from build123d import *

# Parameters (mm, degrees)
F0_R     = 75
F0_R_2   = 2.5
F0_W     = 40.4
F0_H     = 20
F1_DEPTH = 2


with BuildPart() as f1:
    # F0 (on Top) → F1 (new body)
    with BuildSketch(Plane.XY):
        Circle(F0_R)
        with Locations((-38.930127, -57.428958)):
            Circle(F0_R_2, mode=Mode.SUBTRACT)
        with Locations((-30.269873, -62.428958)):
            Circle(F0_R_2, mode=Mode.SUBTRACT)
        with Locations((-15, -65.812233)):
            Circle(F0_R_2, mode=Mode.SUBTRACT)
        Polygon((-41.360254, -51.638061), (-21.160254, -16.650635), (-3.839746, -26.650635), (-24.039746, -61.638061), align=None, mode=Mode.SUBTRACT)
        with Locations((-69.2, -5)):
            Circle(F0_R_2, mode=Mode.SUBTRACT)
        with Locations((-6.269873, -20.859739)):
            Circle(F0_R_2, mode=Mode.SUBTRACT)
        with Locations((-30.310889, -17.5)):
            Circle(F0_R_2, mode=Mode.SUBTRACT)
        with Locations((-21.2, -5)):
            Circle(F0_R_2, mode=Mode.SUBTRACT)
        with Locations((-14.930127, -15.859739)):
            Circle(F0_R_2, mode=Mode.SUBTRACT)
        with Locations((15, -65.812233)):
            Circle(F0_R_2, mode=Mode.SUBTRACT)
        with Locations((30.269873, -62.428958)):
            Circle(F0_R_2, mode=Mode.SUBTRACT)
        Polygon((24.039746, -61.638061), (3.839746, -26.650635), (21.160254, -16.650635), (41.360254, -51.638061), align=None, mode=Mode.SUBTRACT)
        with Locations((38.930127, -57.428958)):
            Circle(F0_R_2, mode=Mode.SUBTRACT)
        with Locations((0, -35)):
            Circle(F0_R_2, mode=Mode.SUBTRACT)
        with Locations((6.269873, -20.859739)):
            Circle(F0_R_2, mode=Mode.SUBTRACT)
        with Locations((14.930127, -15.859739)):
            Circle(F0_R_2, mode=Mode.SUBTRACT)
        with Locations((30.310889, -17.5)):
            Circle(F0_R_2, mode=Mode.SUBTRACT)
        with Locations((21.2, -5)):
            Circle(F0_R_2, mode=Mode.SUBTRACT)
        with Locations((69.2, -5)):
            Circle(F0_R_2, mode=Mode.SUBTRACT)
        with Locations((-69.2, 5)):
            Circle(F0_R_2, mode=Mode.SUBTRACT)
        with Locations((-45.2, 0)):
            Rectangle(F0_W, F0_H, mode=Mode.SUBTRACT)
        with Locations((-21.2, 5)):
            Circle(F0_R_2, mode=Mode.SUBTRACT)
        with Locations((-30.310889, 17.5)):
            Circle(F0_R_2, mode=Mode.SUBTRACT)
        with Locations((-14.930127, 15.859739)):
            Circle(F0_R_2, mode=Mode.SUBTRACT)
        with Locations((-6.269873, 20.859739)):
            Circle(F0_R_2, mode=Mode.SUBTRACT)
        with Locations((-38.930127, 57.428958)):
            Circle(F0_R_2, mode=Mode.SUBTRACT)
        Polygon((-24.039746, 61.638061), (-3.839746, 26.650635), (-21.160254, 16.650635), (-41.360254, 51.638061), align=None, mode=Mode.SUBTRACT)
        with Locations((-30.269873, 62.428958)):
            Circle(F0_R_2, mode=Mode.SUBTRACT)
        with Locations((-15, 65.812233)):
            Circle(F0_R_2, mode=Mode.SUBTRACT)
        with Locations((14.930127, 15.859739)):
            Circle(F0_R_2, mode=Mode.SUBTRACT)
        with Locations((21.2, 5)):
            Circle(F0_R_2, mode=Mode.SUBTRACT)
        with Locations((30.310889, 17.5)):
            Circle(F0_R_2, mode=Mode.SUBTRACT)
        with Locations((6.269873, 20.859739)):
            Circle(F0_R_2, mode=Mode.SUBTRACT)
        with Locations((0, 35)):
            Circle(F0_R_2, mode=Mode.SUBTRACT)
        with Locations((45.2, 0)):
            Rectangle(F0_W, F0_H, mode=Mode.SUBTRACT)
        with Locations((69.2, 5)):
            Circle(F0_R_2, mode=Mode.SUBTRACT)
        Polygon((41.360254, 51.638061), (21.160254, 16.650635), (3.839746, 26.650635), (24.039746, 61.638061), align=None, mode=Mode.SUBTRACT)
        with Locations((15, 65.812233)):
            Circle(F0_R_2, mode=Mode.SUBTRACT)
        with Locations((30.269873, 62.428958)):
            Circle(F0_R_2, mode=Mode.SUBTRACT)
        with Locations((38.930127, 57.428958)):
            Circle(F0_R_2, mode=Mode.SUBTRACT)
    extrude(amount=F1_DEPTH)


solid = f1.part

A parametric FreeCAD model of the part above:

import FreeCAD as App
import Part
import Sketcher

V = App.Vector
Q = App.Units.Quantity


def add_polygon(sketch, points):
    """Adds a closed chain of lines whose ends are joined by coincident constraints."""
    first, n = sketch.GeometryCount, len(points)
    for a, b in zip(points, points[1:] + points[:1]):
        sketch.addGeometry(Part.LineSegment(App.Vector(*a, 0), App.Vector(*b, 0)), False)
    for i in range(n):
        sketch.addConstraint(Sketcher.Constraint("Coincident", first + i, 2, first + (i + 1) % n, 1))

doc = App.newDocument("Part")
params = doc.addObject("Spreadsheet::Sheet", "Params")
for row, (alias, value) in enumerate([
    ("sketch1_diameter", "150 mm"),
    ("sketch1_diameter2", "5 mm"),
    ("sketch1_height", "20 mm"),
    ("sketch1_length", "20 mm"),
    ("sketch1_width", "40.4 mm"),
    ("pad1_length", "2 mm"),
], start=1):
    params.set(f"A{row}", alias)
    params.set(f"B{row}", "=" + value)
    params.setAlias(f"B{row}", alias)

body = doc.addObject("PartDesign::Body", "Body")

sketch1 = doc.addObject("Sketcher::SketchObject", "Sketch")
body.addObject(sketch1)
sketch1.AttachmentSupport = (doc.XY_Plane, [""])
sketch1.MapMode = "FlatFace"
sketch1.addGeometry(Part.Circle(V(0, 0, 0), V(0, 0, 1), 75), False)
sketch1.addGeometry(Part.Circle(V(-38.930127, -57.428958, 0), V(0, 0, 1), 2.5), False)
sketch1.addGeometry(Part.Circle(V(-30.269873, -62.428958, 0), V(0, 0, 1), 2.5), False)
sketch1.addGeometry(Part.Circle(V(-15, -65.812233, 0), V(0, 0, 1), 2.5), False)
add_polygon(sketch1, [(-24.039746, -61.638061), (-41.360254, -51.638061), (-21.160254, -16.650635), (-3.839746, -26.650635)])
sketch1.addGeometry(Part.Circle(V(-69.2, -5, 0), V(0, 0, 1), 2.5), False)
sketch1.addGeometry(Part.Circle(V(-30.310889, -17.5, 0), V(0, 0, 1), 2.5), False)
sketch1.addGeometry(Part.Circle(V(-6.269873, -20.859739, 0), V(0, 0, 1), 2.5), False)
sketch1.addGeometry(Part.Circle(V(-21.2, -5, 0), V(0, 0, 1), 2.5), False)
sketch1.addGeometry(Part.Circle(V(-14.930127, -15.859739, 0), V(0, 0, 1), 2.5), False)
sketch1.addGeometry(Part.Circle(V(15, -65.812233, 0), V(0, 0, 1), 2.5), False)
sketch1.addGeometry(Part.Circle(V(30.269873, -62.428958, 0), V(0, 0, 1), 2.5), False)
sketch1.addGeometry(Part.Circle(V(0, -35, 0), V(0, 0, 1), 2.5), False)
add_polygon(sketch1, [(41.360254, -51.638061), (24.039746, -61.638061), (3.839746, -26.650635), (21.160254, -16.650635)])
sketch1.addGeometry(Part.Circle(V(38.930127, -57.428958, 0), V(0, 0, 1), 2.5), False)
sketch1.addGeometry(Part.Circle(V(6.269873, -20.859739, 0), V(0, 0, 1), 2.5), False)
sketch1.addGeometry(Part.Circle(V(30.310889, -17.5, 0), V(0, 0, 1), 2.5), False)
sketch1.addGeometry(Part.Circle(V(14.930127, -15.859739, 0), V(0, 0, 1), 2.5), False)
sketch1.addGeometry(Part.Circle(V(21.2, -5, 0), V(0, 0, 1), 2.5), False)
sketch1.addGeometry(Part.Circle(V(69.2, -5, 0), V(0, 0, 1), 2.5), False)
sketch1.addGeometry(Part.Circle(V(-69.2, 5, 0), V(0, 0, 1), 2.5), False)
add_polygon(sketch1, [(-25, -10), (-65.4, -10), (-65.4, 10), (-25, 10)])
sketch1.addGeometry(Part.Circle(V(-21.2, 5, 0), V(0, 0, 1), 2.5), False)
sketch1.addGeometry(Part.Circle(V(-14.930127, 15.859739, 0), V(0, 0, 1), 2.5), False)
sketch1.addGeometry(Part.Circle(V(-30.310889, 17.5, 0), V(0, 0, 1), 2.5), False)
sketch1.addGeometry(Part.Circle(V(-6.269873, 20.859739, 0), V(0, 0, 1), 2.5), False)
sketch1.addGeometry(Part.Circle(V(-38.930127, 57.428958, 0), V(0, 0, 1), 2.5), False)
add_polygon(sketch1, [(-41.360254, 51.638061), (-24.039746, 61.638061), (-3.839746, 26.650635), (-21.160254, 16.650635)])
sketch1.addGeometry(Part.Circle(V(-30.269873, 62.428958, 0), V(0, 0, 1), 2.5), False)
sketch1.addGeometry(Part.Circle(V(-15, 65.812233, 0), V(0, 0, 1), 2.5), False)
sketch1.addGeometry(Part.Circle(V(14.930127, 15.859739, 0), V(0, 0, 1), 2.5), False)
sketch1.addGeometry(Part.Circle(V(21.2, 5, 0), V(0, 0, 1), 2.5), False)
sketch1.addGeometry(Part.Circle(V(6.269873, 20.859739, 0), V(0, 0, 1), 2.5), False)
sketch1.addGeometry(Part.Circle(V(30.310889, 17.5, 0), V(0, 0, 1), 2.5), False)
add_polygon(sketch1, [(65.4, -10), (25, -10), (25, 10), (65.4, 10)])
sketch1.addGeometry(Part.Circle(V(69.2, 5, 0), V(0, 0, 1), 2.5), False)
sketch1.addGeometry(Part.Circle(V(0, 35, 0), V(0, 0, 1), 2.5), False)
add_polygon(sketch1, [(24.039746, 61.638061), (41.360254, 51.638061), (21.160254, 16.650635), (3.839746, 26.650635)])
sketch1.addGeometry(Part.Circle(V(15, 65.812233, 0), V(0, 0, 1), 2.5), False)
sketch1.addGeometry(Part.Circle(V(30.269873, 62.428958, 0), V(0, 0, 1), 2.5), False)
sketch1.addGeometry(Part.Circle(V(38.930127, 57.428958, 0), V(0, 0, 1), 2.5), False)
sketch1.addConstraint([
    Sketcher.Constraint("Horizontal", 27),
    Sketcher.Constraint("Vertical", 28),
    Sketcher.Constraint("Horizontal", 29),
    Sketcher.Constraint("Vertical", 30),
    Sketcher.Constraint("Horizontal", 46),
    Sketcher.Constraint("Vertical", 47),
    Sketcher.Constraint("Horizontal", 48),
    Sketcher.Constraint("Vertical", 49),
    Sketcher.Constraint("Coincident", 0, 3, -1, 1),
    Sketcher.Constraint("Equal", 1, 2),
    Sketcher.Constraint("Equal", 2, 3),
    Sketcher.Constraint("Equal", 3, 8),
    Sketcher.Constraint("Equal", 8, 9),
    Sketcher.Constraint("Equal", 9, 10),
    Sketcher.Constraint("Equal", 10, 11),
    Sketcher.Constraint("Equal", 11, 12),
    Sketcher.Constraint("Equal", 12, 13),
    Sketcher.Constraint("Equal", 13, 14),
    Sketcher.Constraint("Equal", 14, 15),
    Sketcher.Constraint("Equal", 15, 20),
    Sketcher.Constraint("Equal", 20, 21),
    Sketcher.Constraint("Equal", 21, 22),
    Sketcher.Constraint("Equal", 22, 23),
    Sketcher.Constraint("Equal", 23, 24),
    Sketcher.Constraint("Equal", 24, 25),
    Sketcher.Constraint("Equal", 25, 26),
    Sketcher.Constraint("Equal", 26, 31),
    Sketcher.Constraint("Equal", 31, 32),
    Sketcher.Constraint("Equal", 32, 33),
    Sketcher.Constraint("Equal", 33, 34),
    Sketcher.Constraint("Equal", 34, 35),
    Sketcher.Constraint("Equal", 35, 40),
    Sketcher.Constraint("Equal", 40, 41),
    Sketcher.Constraint("Equal", 41, 42),
    Sketcher.Constraint("Equal", 42, 43),
    Sketcher.Constraint("Equal", 43, 44),
    Sketcher.Constraint("Equal", 44, 45),
    Sketcher.Constraint("Equal", 45, 50),
    Sketcher.Constraint("Equal", 50, 51),
    Sketcher.Constraint("Equal", 51, 56),
    Sketcher.Constraint("Equal", 56, 57),
    Sketcher.Constraint("Equal", 57, 58),
    Sketcher.Constraint("Symmetric", 25, 3, 26, 3, -1, 1),
    Sketcher.Constraint("Symmetric", 24, 3, 31, 3, -1, 1),
    Sketcher.Constraint("Symmetric", 23, 3, 32, 3, -1, 1),
    Sketcher.Constraint("Symmetric", 22, 3, 33, 3, -1, 1),
    Sketcher.Constraint("Symmetric", 21, 3, 34, 3, -1, 1),
    Sketcher.Constraint("Symmetric", 20, 3, 35, 3, -1, 1),
    Sketcher.Constraint("Symmetric", 14, 3, 40, 3, -1, 1),
    Sketcher.Constraint("Symmetric", 13, 3, 41, 3, -1, 1),
    Sketcher.Constraint("Symmetric", 12, 3, 42, 3, -1, 1),
    Sketcher.Constraint("Symmetric", 11, 3, 43, 3, -1, 1),
    Sketcher.Constraint("Symmetric", 10, 3, 44, 3, -1, 1),
    Sketcher.Constraint("Symmetric", 9, 3, 45, 3, -1, 1),
    Sketcher.Constraint("Symmetric", 8, 3, 50, 3, -1, 1),
    Sketcher.Constraint("Symmetric", 15, 3, 51, 3, -1, 1),
    Sketcher.Constraint("Symmetric", 3, 3, 56, 3, -1, 1),
    Sketcher.Constraint("Symmetric", 2, 3, 57, 3, -1, 1),
    Sketcher.Constraint("Symmetric", 1, 3, 58, 3, -1, 1),
    Sketcher.Constraint("Symmetric", 16, 2, 36, 2, -1, 1),
    Sketcher.Constraint("Symmetric", 17, 2, 37, 2, -1, 1),
    Sketcher.Constraint("Symmetric", 18, 2, 38, 2, -1, 1),
    Sketcher.Constraint("Symmetric", 19, 2, 39, 2, -1, 1),
    Sketcher.Constraint("Symmetric", 29, 2, 46, 2, -1, 1),
    Sketcher.Constraint("Symmetric", 27, 2, 48, 2, -1, 1),
    Sketcher.Constraint("Symmetric", 4, 2, 52, 2, -1, 1),
    Sketcher.Constraint("Symmetric", 5, 2, 53, 2, -1, 1),
    Sketcher.Constraint("Symmetric", 6, 2, 54, 2, -1, 1),
    Sketcher.Constraint("Symmetric", 7, 2, 55, 2, -1, 1),
    Sketcher.Constraint("Symmetric", 3, 3, 13, 3, -2),
    Sketcher.Constraint("Symmetric", 2, 3, 14, 3, -2),
    Sketcher.Constraint("Symmetric", 1, 3, 20, 3, -2),
    Sketcher.Constraint("Symmetric", 10, 3, 21, 3, -2),
    Sketcher.Constraint("Symmetric", 9, 3, 22, 3, -2),
    Sketcher.Constraint("Symmetric", 12, 3, 23, 3, -2),
    Sketcher.Constraint("Symmetric", 11, 3, 24, 3, -2),
    Sketcher.Constraint("Symmetric", 8, 3, 25, 3, -2),
    Sketcher.Constraint("Symmetric", 7, 2, 16, 2, -2),
    Sketcher.Constraint("Symmetric", 6, 2, 17, 2, -2),
    Sketcher.Constraint("Symmetric", 5, 2, 18, 2, -2),
    Sketcher.Constraint("Symmetric", 4, 2, 19, 2, -2),
    Sketcher.Constraint("PointOnObject", 15, 3, -2),
    Sketcher.Constraint("Perpendicular", 4, 5),
    Sketcher.Constraint("Perpendicular", 5, 6),
    Sketcher.Constraint("Perpendicular", 6, 7),
    Sketcher.Constraint("Horizontal", 8, 3, 11, 3),
    Sketcher.Constraint("Horizontal", 30, 2, 46, 2),
    Sketcher.Constraint("Diameter", 0, Q("150 mm")),
    Sketcher.Constraint("Diameter", 1, Q("5 mm")),
    Sketcher.Constraint("DistanceY", 28, 1, 28, 2, Q("20 mm")),
    Sketcher.Constraint("Angle", 4, Q("150 deg")),
    Sketcher.Constraint("Distance", 4, Q("20 mm")),
    Sketcher.Constraint("DistanceX", 27, 2, 27, 1, Q("40.4 mm")),
    Sketcher.Constraint("DistanceX", 3, 3, -1, 1, Q("15 mm")),
    Sketcher.Constraint("DistanceY", 8, 3, -1, 1, Q("5 mm")),
    Sketcher.Constraint("DistanceY", 15, 3, -1, 1, Q("35 mm")),
    Sketcher.Constraint("DistanceX", 29, 2, -1, 1, Q("25 mm")),
    Sketcher.Constraint("DistanceY", 2, 3, 1, 3, Q("5 mm")),
    Sketcher.Constraint("DistanceX", 2, 3, 10, 3, Q("24 mm")),
    Sketcher.Constraint("DistanceX", 8, 3, 11, 3, Q("48 mm")),
    Sketcher.Constraint("DistanceY", 10, 3, 12, 3, Q("5 mm")),
    Sketcher.Constraint("DistanceX", 1, 3, 12, 3, Q("24 mm")),
    Sketcher.Constraint("DistanceY", 9, 3, 33, 3, Q("35 mm")),
    Sketcher.Constraint("Distance", 5, Q("40.4 mm")),
    Sketcher.Constraint("DistanceX", 8, 3, -1, 1, Q("69.2 mm")),
    Sketcher.Constraint("DistanceX", 12, 3, 14, 3, Q("45.2 mm")),
    Sketcher.Constraint("DistanceY", 1, 3, -1, 1, Q("57.428958 mm")),
    Sketcher.Constraint("DistanceX", 9, 3, -1, 1, Q("30.310889 mm")),
    Sketcher.Constraint("DistanceY", 10, 3, -1, 1, Q("20.859739 mm")),
    Sketcher.Constraint("DistanceY", 4, 2, -1, 1, Q("51.638061 mm")),
    Sketcher.Constraint("DistanceX", 9, 3, 12, 3, Q("15.380762 mm")),
    Sketcher.Constraint("DistanceX", 4, 2, 2, 3, Q("11.090381 mm")),
    Sketcher.Constraint("DistanceY", 3, 3, -1, 1, Q("65.812233 mm")),
])
sketch1.setExpression("Constraints[111]", "Params.sketch1_diameter")
sketch1.setExpression("Constraints[112]", "Params.sketch1_diameter2")
sketch1.setExpression("Constraints[113]", "Params.sketch1_height")
sketch1.setExpression("Constraints[115]", "Params.sketch1_length")
sketch1.setExpression("Constraints[116]", "Params.sketch1_width")
pad1 = doc.addObject("PartDesign::Pad", "Pad")
body.addObject(pad1)
pad1.Profile = sketch1
pad1.setExpression("Length", "Params.pad1_length")

doc.recompute()
